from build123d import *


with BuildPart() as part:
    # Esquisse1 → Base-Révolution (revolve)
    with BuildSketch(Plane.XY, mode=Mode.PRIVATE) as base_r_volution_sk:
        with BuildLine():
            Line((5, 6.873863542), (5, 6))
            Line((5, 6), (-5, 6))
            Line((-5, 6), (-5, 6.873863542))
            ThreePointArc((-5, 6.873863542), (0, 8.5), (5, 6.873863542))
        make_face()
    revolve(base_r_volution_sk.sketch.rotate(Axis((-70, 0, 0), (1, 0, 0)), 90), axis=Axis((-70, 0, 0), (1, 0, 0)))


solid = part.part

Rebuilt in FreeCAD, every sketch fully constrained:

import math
import FreeCAD as App
import Part
import Sketcher
Q = App.Units.Quantity

doc = App.newDocument("Part")
params = doc.addObject("Spreadsheet::Sheet", "Params")
for row, (alias, value) in enumerate([
    ("sketch1_radius", "8.5 mm"),
    ("sketch1_width", "10 mm"),
    ("revolution_angle", "360 deg"),
], start=1):
    params.set(f"A{row}", alias)
    params.set(f"B{row}", "=" + value)
    params.setAlias(f"B{row}", alias)

body = doc.addObject("PartDesign::Body", "Body")

# Sketch on XY plane
sketch1 = doc.addObject("Sketcher::SketchObject", "Sketch")
body.addObject(sketch1)
sketch1.AttachmentSupport = (doc.XY_Plane, [""])
sketch1.MapMode = "FlatFace"
sketch1.addGeometry(Part.LineSegment(App.Vector(5, 6, 0), App.Vector(5, 6.9, 0)), False)
sketch1.addGeometry(Part.ArcOfCircle(Part.Circle(App.Vector(0, 0, 0), App.Vector(0, 0, 1), 8.5), math.radians(54), math.radians(126)), False)
sketch1.addGeometry(Part.LineSegment(App.Vector(-5, 6.9, 0), App.Vector(-5, 6, 0)), False)
sketch1.addGeometry(Part.LineSegment(App.Vector(-5, 6, 0), App.Vector(5, 6, 0)), False)
sketch1.addConstraint(Sketcher.Constraint("Coincident", 0, 2, 1, 1))
sketch1.addConstraint(Sketcher.Constraint("Coincident", 1, 2, 2, 1))
sketch1.addConstraint(Sketcher.Constraint("Coincident", 2, 2, 3, 1))
sketch1.addConstraint(Sketcher.Constraint("Coincident", 3, 2, 0, 1))
sketch1.addConstraint(Sketcher.Constraint("Vertical", 0))
sketch1.addConstraint(Sketcher.Constraint("Vertical", 2))
sketch1.addConstraint(Sketcher.Constraint("Horizontal", 3))
sketch1.addConstraint(Sketcher.Constraint("Coincident", 1, 3, -1, 1))
sketch1.addConstraint(Sketcher.Constraint("Horizontal", 0, 2, 1, 2))
sketch1.addConstraint(Sketcher.Constraint("Radius", 1, Q("8.5 mm")))
sketch1.addConstraint(Sketcher.Constraint("DistanceX", 3, 1, 3, 2, Q("10 mm")))
sketch1.addConstraint(Sketcher.Constraint("DistanceY", -1, 1, 2, 2, Q("6 mm")))
sketch1.setExpression("Constraints[9]", "Params.sketch1_radius")
sketch1.setExpression("Constraints[10]", "Params.sketch1_width")
revolution = doc.addObject("PartDesign::Revolution", "Revolution")
body.addObject(revolution)
revolution.Profile = sketch1
revolution.ReferenceAxis = (sketch1, ["H_Axis"])
revolution.setExpression("Angle", "Params.revolution_angle")

doc.recompute()
